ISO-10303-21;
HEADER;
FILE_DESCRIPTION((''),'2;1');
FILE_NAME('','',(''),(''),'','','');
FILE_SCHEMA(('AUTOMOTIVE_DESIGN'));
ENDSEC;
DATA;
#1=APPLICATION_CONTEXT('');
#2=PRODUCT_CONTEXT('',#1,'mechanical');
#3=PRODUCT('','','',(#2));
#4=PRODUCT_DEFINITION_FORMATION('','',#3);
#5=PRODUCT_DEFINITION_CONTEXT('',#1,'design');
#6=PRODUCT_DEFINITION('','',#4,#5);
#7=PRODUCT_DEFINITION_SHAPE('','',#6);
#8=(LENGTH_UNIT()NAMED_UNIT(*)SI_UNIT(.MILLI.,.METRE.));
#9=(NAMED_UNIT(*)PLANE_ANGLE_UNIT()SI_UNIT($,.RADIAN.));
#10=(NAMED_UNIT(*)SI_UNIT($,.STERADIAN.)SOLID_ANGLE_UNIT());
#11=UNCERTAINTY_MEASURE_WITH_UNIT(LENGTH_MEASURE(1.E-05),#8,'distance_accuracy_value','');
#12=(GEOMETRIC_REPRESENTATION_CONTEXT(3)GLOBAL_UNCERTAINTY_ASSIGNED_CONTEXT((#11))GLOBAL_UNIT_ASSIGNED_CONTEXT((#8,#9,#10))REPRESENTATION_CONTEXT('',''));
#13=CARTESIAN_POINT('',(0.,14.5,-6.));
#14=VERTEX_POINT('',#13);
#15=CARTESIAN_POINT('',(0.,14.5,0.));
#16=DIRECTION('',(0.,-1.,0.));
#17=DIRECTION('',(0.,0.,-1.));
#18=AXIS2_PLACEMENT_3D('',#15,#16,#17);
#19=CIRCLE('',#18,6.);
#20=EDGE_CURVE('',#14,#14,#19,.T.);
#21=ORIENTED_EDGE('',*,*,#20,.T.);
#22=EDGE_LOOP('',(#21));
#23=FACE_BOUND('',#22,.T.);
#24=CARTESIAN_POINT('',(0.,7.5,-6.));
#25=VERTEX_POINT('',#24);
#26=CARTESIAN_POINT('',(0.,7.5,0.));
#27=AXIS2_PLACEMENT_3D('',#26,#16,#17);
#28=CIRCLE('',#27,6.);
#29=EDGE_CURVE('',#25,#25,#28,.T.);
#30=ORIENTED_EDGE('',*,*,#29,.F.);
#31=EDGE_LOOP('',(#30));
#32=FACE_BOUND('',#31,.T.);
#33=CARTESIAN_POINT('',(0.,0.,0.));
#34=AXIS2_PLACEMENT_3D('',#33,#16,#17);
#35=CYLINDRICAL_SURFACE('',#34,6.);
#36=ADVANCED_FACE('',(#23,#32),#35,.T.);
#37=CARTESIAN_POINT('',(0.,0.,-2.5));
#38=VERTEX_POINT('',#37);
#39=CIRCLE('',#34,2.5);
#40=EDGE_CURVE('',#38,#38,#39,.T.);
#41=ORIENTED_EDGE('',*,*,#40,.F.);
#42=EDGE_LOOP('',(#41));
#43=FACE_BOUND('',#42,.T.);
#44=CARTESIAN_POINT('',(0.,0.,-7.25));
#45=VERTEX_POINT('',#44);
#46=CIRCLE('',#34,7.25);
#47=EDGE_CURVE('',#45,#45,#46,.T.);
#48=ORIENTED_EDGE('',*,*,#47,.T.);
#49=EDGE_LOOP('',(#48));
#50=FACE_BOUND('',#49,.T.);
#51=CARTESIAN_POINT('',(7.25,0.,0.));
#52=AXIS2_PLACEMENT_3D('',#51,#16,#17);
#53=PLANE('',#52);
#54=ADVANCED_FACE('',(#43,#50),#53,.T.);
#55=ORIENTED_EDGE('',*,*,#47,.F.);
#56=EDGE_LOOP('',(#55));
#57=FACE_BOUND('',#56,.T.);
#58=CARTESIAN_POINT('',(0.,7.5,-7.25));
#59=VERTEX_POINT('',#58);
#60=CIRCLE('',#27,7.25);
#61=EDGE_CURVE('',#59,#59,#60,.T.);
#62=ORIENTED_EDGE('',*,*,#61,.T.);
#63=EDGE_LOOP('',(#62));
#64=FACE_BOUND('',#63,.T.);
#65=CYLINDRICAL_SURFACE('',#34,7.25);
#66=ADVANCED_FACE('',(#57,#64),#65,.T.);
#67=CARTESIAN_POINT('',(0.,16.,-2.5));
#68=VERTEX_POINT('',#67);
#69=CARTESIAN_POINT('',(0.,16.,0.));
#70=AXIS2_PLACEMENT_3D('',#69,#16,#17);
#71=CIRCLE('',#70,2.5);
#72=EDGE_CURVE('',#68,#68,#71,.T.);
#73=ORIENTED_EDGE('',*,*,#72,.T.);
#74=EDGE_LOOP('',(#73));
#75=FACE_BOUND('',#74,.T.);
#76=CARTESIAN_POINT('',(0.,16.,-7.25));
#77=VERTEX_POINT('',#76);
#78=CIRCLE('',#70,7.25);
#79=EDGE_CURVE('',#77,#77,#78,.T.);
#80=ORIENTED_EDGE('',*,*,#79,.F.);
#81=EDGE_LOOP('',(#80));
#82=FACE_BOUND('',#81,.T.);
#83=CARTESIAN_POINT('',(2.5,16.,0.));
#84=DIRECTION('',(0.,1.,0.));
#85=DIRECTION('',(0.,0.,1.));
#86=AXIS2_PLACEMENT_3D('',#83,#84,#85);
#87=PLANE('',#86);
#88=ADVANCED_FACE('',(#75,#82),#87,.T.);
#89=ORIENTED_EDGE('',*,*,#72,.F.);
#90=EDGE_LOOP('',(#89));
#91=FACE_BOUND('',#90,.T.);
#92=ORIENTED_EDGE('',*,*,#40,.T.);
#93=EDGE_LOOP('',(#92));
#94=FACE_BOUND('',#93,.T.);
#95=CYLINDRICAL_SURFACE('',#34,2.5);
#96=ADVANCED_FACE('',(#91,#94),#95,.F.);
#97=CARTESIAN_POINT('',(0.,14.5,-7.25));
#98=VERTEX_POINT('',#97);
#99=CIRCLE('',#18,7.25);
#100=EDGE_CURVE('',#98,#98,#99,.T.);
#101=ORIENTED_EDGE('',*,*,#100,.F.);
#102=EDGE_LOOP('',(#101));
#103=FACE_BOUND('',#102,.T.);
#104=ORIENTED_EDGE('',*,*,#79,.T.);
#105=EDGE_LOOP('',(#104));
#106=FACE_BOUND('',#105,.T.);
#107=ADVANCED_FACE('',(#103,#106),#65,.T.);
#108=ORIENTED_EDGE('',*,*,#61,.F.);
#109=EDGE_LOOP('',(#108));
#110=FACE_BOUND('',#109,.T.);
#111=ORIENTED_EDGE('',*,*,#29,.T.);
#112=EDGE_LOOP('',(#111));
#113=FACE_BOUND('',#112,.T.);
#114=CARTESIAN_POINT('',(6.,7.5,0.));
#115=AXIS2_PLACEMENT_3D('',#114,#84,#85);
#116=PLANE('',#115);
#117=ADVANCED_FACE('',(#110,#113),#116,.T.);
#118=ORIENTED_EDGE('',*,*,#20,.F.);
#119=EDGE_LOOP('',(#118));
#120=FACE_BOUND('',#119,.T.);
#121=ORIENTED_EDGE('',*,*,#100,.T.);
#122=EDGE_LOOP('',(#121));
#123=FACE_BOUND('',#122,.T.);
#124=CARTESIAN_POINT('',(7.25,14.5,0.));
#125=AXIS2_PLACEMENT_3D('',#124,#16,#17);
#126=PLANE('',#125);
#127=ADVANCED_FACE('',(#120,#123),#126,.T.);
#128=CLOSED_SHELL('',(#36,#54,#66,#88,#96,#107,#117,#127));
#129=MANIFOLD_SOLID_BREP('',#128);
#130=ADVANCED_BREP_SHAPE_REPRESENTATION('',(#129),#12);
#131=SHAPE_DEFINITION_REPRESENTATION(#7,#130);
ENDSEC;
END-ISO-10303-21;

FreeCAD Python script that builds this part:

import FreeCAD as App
import Part
import Sketcher

V = App.Vector

doc = App.newDocument("Part")
params = doc.addObject("Spreadsheet::Sheet", "Params")
for row, (alias, value) in enumerate([
    ("sketch1_height", "16 mm"),
    ("sketch1_height2", "7 mm"),
    ("sketch1_height3", "7.5 mm"),
    ("sketch1_width", "4.75 mm"),
    ("sketch1_width2", "1.25 mm"),
    ("revolution_angle", "360 deg"),
], start=1):
    params.set(f"A{row}", alias)
    params.set(f"B{row}", "=" + value)
    params.setAlias(f"B{row}", alias)

body = doc.addObject("PartDesign::Body", "Body")

sketch1 = doc.addObject("Sketcher::SketchObject", "Sketch")
body.addObject(sketch1)
sketch1.AttachmentSupport = (doc.XY_Plane, [""])
sketch1.MapMode = "FlatFace"
sketch1.addGeometry(Part.LineSegment(V(2.5, 16, 0), V(2.5, 0, 0)), False)
sketch1.addGeometry(Part.LineSegment(V(2.5, 0, 0), V(7.2, 0, 0)), False)
sketch1.addGeometry(Part.LineSegment(V(7.2, 0, 0), V(7.2, 7.5, 0)), False)
sketch1.addGeometry(Part.LineSegment(V(7.2, 7.5, 0), V(6, 7.5, 0)), False)
sketch1.addGeometry(Part.LineSegment(V(6, 7.5, 0), V(6, 14.5, 0)), False)
sketch1.addGeometry(Part.LineSegment(V(6, 14.5, 0), V(7.2, 14.5, 0)), False)
sketch1.addGeometry(Part.LineSegment(V(7.2, 14.5, 0), V(7.2, 16, 0)), False)
sketch1.addGeometry(Part.LineSegment(V(7.2, 16, 0), V(2.5, 16, 0)), False)
sketch1.addConstraint(Sketcher.Constraint("Coincident", 0, 2, 1, 1))
sketch1.addConstraint(Sketcher.Constraint("Coincident", 1, 2, 2, 1))
sketch1.addConstraint(Sketcher.Constraint("Coincident", 2, 2, 3, 1))
sketch1.addConstraint(Sketcher.Constraint("Coincident", 3, 2, 4, 1))
sketch1.addConstraint(Sketcher.Constraint("Coincident", 4, 2, 5, 1))
sketch1.addConstraint(Sketcher.Constraint("Coincident", 5, 2, 6, 1))
sketch1.addConstraint(Sketcher.Constraint("Coincident", 6, 2, 7, 1))
sketch1.addConstraint(Sketcher.Constraint("Coincident", 7, 2, 0, 1))
sketch1.addConstraint(Sketcher.Constraint("Vertical", 0))
sketch1.addConstraint(Sketcher.Constraint("Horizontal", 1))
sketch1.addConstraint(Sketcher.Constraint("Vertical", 2))
sketch1.addConstraint(Sketcher.Constraint("Horizontal", 3))
sketch1.addConstraint(Sketcher.Constraint("Vertical", 4))
sketch1.addConstraint(Sketcher.Constraint("Horizontal", 5))
sketch1.addConstraint(Sketcher.Constraint("Vertical", 6))
sketch1.addConstraint(Sketcher.Constraint("Horizontal", 7))
sketch1.addConstraint(Sketcher.Constraint("PointOnObject", 0, 2, -1))
sketch1.addConstraint(Sketcher.Constraint("Vertical", 2, 2, 5, 2))
sketch1.addConstraint(Sketcher.Constraint("DistanceY", 0, 2, 0, 1, 16.0))
sketch1.addConstraint(Sketcher.Constraint("DistanceY", 4, 1, 4, 2, 7.0))
sketch1.addConstraint(Sketcher.Constraint("DistanceY", 2, 1, 2, 2, 7.5))
sketch1.addConstraint(Sketcher.Constraint("DistanceX", -1, 1, 3, 2, 6.0))
sketch1.addConstraint(Sketcher.Constraint("DistanceX", 1, 1, 1, 2, 4.75))
sketch1.addConstraint(Sketcher.Constraint("DistanceX", 3, 2, 3, 1, 1.25))
sketch1.setExpression("Constraints[18]", "Params.sketch1_height")
sketch1.setExpression("Constraints[19]", "Params.sketch1_height2")
sketch1.setExpression("Constraints[20]", "Params.sketch1_height3")
sketch1.setExpression("Constraints[22]", "Params.sketch1_width")
sketch1.setExpression("Constraints[23]", "Params.sketch1_width2")
revolution = doc.addObject("PartDesign::Revolution", "Revolution")
body.addObject(revolution)
revolution.Profile = sketch1
revolution.ReferenceAxis = (sketch1, ["V_Axis"])
revolution.setExpression("Angle", "Params.revolution_angle")

doc.recompute()
